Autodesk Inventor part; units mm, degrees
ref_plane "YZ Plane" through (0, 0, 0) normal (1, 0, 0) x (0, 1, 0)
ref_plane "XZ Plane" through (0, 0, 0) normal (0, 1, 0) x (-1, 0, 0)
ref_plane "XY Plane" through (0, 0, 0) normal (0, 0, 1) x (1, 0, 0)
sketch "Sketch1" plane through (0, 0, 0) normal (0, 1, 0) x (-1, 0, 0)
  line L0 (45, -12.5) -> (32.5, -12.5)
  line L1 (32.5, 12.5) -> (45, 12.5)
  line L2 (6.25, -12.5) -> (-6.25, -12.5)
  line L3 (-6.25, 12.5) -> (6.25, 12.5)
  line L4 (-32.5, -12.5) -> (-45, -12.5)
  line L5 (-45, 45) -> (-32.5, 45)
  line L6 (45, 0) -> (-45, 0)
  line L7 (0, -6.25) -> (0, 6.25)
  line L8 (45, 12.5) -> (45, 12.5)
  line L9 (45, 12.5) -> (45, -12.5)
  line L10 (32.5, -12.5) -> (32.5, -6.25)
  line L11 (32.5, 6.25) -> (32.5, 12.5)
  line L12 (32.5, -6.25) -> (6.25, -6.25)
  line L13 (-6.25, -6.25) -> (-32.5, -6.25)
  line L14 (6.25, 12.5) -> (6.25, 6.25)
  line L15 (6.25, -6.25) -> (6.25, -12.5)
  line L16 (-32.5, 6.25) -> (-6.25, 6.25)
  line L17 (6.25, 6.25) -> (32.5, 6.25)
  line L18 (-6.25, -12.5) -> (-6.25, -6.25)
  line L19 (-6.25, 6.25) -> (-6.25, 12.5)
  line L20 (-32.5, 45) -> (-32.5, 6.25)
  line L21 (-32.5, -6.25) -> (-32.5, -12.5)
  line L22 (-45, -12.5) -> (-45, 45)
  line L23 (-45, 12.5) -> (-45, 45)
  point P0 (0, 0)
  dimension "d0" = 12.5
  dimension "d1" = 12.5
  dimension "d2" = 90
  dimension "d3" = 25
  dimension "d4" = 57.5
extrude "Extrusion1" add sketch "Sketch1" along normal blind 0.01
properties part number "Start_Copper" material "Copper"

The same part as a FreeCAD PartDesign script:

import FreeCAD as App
import Part
import Sketcher
from FreeCAD import Vector
Q = App.Units.Quantity


def add_polygon(sketch, points):
    """Adds a closed chain of lines whose ends are joined by coincident constraints."""
    first, n = sketch.GeometryCount, len(points)
    for a, b in zip(points, points[1:] + points[:1]):
        sketch.addGeometry(Part.LineSegment(App.Vector(*a, 0), App.Vector(*b, 0)), False)
    for i in range(n):
        sketch.addConstraint(Sketcher.Constraint("Coincident", first + i, 2, first + (i + 1) % n, 1))

doc = App.newDocument("Part")
body = doc.addObject("PartDesign::Body", "Body")

# Sketch on XZ plane
sketch1 = body.newObject("Sketcher::SketchObject", "Sketch")
sketch1.AttachmentSupport = (doc.getObject("XZ_Plane"), [""])
sketch1.MapMode = "FlatFace"
add_polygon(sketch1, [(-32, -12), (-45, -12), (-45, 12), (-32, 12), (-32, 6), (-6, 6), (-6, 12), (6, 12), (6, 6), (32, 6), (32, 45), (45, 45), (45, -12), (32, -12), (32, -6), (6, -6), (6, -12), (-6, -12), (-6, -6), (-32, -6)])  # lines 0-19
sketch1.addConstraint(Sketcher.Constraint("Horizontal", 0))
sketch1.addConstraint(Sketcher.Constraint("Vertical", 1))
sketch1.addConstraint(Sketcher.Constraint("Horizontal", 2))
sketch1.addConstraint(Sketcher.Constraint("Vertical", 3))
sketch1.addConstraint(Sketcher.Constraint("Horizontal", 4))
sketch1.addConstraint(Sketcher.Constraint("Vertical", 5))
sketch1.addConstraint(Sketcher.Constraint("Horizontal", 6))
sketch1.addConstraint(Sketcher.Constraint("Vertical", 7))
sketch1.addConstraint(Sketcher.Constraint("Horizontal", 8))
sketch1.addConstraint(Sketcher.Constraint("Vertical", 9))
sketch1.addConstraint(Sketcher.Constraint("Horizontal", 10))
sketch1.addConstraint(Sketcher.Constraint("Vertical", 11))
sketch1.addConstraint(Sketcher.Constraint("Horizontal", 12))
sketch1.addConstraint(Sketcher.Constraint("Vertical", 13))
sketch1.addConstraint(Sketcher.Constraint("Horizontal", 14))
sketch1.addConstraint(Sketcher.Constraint("Vertical", 15))
sketch1.addConstraint(Sketcher.Constraint("Horizontal", 16))
sketch1.addConstraint(Sketcher.Constraint("Vertical", 17))
sketch1.addConstraint(Sketcher.Constraint("Horizontal", 18))
sketch1.addConstraint(Sketcher.Constraint("Vertical", 19))
sketch1.addConstraint(Sketcher.Constraint("Symmetric", 1, 2, 11, 2, -1, 1))
sketch1.addConstraint(Sketcher.Constraint("Symmetric", 3, 2, 13, 2, -1, 1))
sketch1.addConstraint(Sketcher.Constraint("Symmetric", 5, 2, 15, 2, -1, 1))
sketch1.addConstraint(Sketcher.Constraint("Symmetric", 7, 2, 17, 2, -1, 1))
sketch1.addConstraint(Sketcher.Constraint("Symmetric", 4, 2, 7, 2, -2))
sketch1.addConstraint(Sketcher.Constraint("Symmetric", 12, 2, 19, 2, -2))
sketch1.addConstraint(Sketcher.Constraint("Horizontal", 2, 2, 5, 2))
sketch1.addConstraint(Sketcher.Constraint("Vertical", 9, 2, 12, 2))
sketch1.addConstraint(Sketcher.Constraint("Equal", 2, 6))
sketch1.addConstraint(Sketcher.Constraint("DistanceY", 1, 1, 1, 2, Q("25 mm")))
sketch1.addConstraint(Sketcher.Constraint("DistanceX", 0, 2, 0, 1, Q("12.5 mm")))
sketch1.addConstraint(Sketcher.Constraint("DistanceY", 11, 2, 11, 1, Q("57.5 mm")))
sketch1.addConstraint(Sketcher.Constraint("DistanceY", 13, 2, 8, 2, Q("12.5 mm")))
sketch1.addConstraint(Sketcher.Constraint("DistanceX", 0, 2, -1, 1, Q("45 mm")))
pad1 = body.newObject("PartDesign::Pad", "Pad")
pad1.Profile = sketch1
pad1.Length = 0.01
pad1.Reversed = True

doc.recompute()
